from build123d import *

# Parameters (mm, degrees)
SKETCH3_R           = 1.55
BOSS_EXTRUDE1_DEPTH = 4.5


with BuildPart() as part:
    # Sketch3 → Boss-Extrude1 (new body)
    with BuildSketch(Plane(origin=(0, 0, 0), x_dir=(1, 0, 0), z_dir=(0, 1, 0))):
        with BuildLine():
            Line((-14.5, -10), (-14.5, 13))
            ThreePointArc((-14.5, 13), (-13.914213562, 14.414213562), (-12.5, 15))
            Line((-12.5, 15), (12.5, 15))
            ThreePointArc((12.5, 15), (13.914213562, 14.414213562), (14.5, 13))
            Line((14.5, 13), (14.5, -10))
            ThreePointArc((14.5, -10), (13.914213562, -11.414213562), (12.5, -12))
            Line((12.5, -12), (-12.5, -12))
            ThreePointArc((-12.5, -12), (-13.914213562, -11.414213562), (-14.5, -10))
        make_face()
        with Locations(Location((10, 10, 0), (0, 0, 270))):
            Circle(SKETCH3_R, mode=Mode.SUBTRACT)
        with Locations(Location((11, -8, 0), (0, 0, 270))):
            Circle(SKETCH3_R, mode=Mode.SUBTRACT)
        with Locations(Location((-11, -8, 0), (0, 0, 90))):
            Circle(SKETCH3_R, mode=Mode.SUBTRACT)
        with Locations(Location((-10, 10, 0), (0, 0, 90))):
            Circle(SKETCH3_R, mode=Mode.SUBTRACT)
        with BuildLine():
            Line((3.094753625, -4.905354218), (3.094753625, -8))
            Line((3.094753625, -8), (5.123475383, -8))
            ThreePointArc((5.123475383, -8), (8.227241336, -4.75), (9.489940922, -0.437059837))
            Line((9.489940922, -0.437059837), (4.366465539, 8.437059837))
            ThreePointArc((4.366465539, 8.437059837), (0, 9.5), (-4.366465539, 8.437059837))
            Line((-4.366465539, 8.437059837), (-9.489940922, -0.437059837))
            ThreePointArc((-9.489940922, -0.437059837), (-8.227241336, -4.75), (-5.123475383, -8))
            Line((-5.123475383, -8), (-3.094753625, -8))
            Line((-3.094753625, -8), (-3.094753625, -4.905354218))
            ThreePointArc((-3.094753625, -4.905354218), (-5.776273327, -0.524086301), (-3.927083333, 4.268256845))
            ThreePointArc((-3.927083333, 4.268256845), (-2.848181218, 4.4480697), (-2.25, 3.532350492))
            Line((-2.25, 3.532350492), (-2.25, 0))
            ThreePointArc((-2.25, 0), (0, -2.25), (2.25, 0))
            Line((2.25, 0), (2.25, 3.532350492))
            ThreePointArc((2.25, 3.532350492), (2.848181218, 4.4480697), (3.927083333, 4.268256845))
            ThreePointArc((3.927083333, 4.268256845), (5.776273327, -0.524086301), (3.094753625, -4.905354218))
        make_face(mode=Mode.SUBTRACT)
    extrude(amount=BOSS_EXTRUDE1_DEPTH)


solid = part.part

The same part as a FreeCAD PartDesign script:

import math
import FreeCAD as App
import Part
import Sketcher

V = App.Vector
Q = App.Units.Quantity

doc = App.newDocument("Part")
body = doc.addObject("PartDesign::Body", "Body")

sketch1 = body.newObject("Sketcher::SketchObject", "Sketch")
sketch1.AttachmentSupport = (doc.getObject("XZ_Plane"), [""])
sketch1.MapMode = "FlatFace"
sketch1.addGeometry([
    Part.LineSegment(V(-14.5, -13, 0), V(-14.5, 10, 0)),
    Part.ArcOfCircle(Part.Circle(V(-12.5, 10, 0), V(0, 0, 1), 2), math.radians(90), math.radians(180)),
    Part.LineSegment(V(-12.5, 12, 0), V(12.5, 12, 0)),
    Part.ArcOfCircle(Part.Circle(V(12.5, 10, 0), V(0, 0, 1), 2), math.radians(0), math.radians(90)),
    Part.LineSegment(V(14.5, 10, 0), V(14.5, -13, 0)),
    Part.ArcOfCircle(Part.Circle(V(12.5, -13, 0), V(0, 0, 1), 2), math.radians(-90), math.radians(0)),
    Part.LineSegment(V(12.5, -15, 0), V(-12.5, -15, 0)),
    Part.ArcOfCircle(Part.Circle(V(-12.5, -13, 0), V(0, 0, 1), 2), math.radians(-180), math.radians(-90)),
    Part.Circle(V(11, 8, 0), V(0, 0, 1), 1.6),
    Part.Circle(V(-11, 8, 0), V(0, 0, 1), 1.6),
    Part.ArcOfCircle(Part.Circle(V(0, 0, 0), V(0, 0, 1), 5.8), math.radians(-47), math.radians(58)),
    Part.ArcOfCircle(Part.Circle(V(3.2, -3.5, 0), V(0, 0, 1), 1), math.radians(180), math.radians(313)),
    Part.LineSegment(V(2.2, -3.5, 0), V(2.2, 0, 0)),
    Part.ArcOfCircle(Part.Circle(V(0, 0, 0), V(0, 0, 1), 2.2), math.radians(0), math.radians(180)),
    Part.LineSegment(V(-2.2, 0, 0), V(-2.2, -3.5, 0)),
    Part.ArcOfCircle(Part.Circle(V(-3.2, -3.5, 0), V(0, 0, 1), 1), math.radians(-133), math.radians(0)),
    Part.ArcOfCircle(Part.Circle(V(0, 0, 0), V(0, 0, 1), 5.8), math.radians(122), math.radians(227)),
    Part.LineSegment(V(-3.1, 4.9, 0), V(-3.1, 8, 0)),
    Part.LineSegment(V(-3.1, 8, 0), V(-5.1, 8, 0)),
    Part.ArcOfCircle(Part.Circle(V(0, 0, 0), V(0, 0, 1), 9.5), math.radians(123), math.radians(177)),
    Part.LineSegment(V(-9.5, 0.4, 0), V(-4.4, -8.4, 0)),
    Part.ArcOfCircle(Part.Circle(V(0, 0, 0), V(0, 0, 1), 9.5), math.radians(-117), math.radians(-63)),
    Part.LineSegment(V(4.4, -8.4, 0), V(9.5, 0.4, 0)),
    Part.ArcOfCircle(Part.Circle(V(0, 0, 0), V(0, 0, 1), 9.5), math.radians(3), math.radians(57)),
    Part.LineSegment(V(5.1, 8, 0), V(3.1, 8, 0)),
    Part.LineSegment(V(3.1, 8, 0), V(3.1, 4.9, 0)),
    Part.Circle(V(10, -10, 0), V(0, 0, 1), 1.6),
    Part.Circle(V(-10, -10, 0), V(0, 0, 1), 1.6),
], False)
sketch1.addConstraint([
    Sketcher.Constraint("Tangent", 0, 2, 1, 2),
    Sketcher.Constraint("Tangent", 1, 1, 2, 1),
    Sketcher.Constraint("Tangent", 2, 2, 3, 2),
    Sketcher.Constraint("Tangent", 3, 1, 4, 1),
    Sketcher.Constraint("Tangent", 4, 2, 5, 2),
    Sketcher.Constraint("Tangent", 5, 1, 6, 1),
    Sketcher.Constraint("Tangent", 6, 2, 7, 2),
    Sketcher.Constraint("Tangent", 7, 1, 0, 1),
    Sketcher.Constraint("Tangent", 10, 1, 11, 2),
    Sketcher.Constraint("Tangent", 11, 1, 12, 1),
    Sketcher.Constraint("Tangent", 12, 2, 13, 1),
    Sketcher.Constraint("Tangent", 13, 2, 14, 1),
    Sketcher.Constraint("Tangent", 14, 2, 15, 2),
    Sketcher.Constraint("Tangent", 15, 1, 16, 2),
    Sketcher.Constraint("Coincident", 16, 1, 17, 1),
    Sketcher.Constraint("Coincident", 17, 2, 18, 1),
    Sketcher.Constraint("Coincident", 18, 2, 19, 1),
    Sketcher.Constraint("Coincident", 19, 2, 20, 1),
    Sketcher.Constraint("Coincident", 20, 2, 21, 1),
    Sketcher.Constraint("Coincident", 21, 2, 22, 1),
    Sketcher.Constraint("Coincident", 22, 2, 23, 1),
    Sketcher.Constraint("Coincident", 23, 2, 24, 1),
    Sketcher.Constraint("Coincident", 24, 2, 25, 1),
    Sketcher.Constraint("Coincident", 25, 2, 10, 2),
    Sketcher.Constraint("Vertical", 0),
    Sketcher.Constraint("Horizontal", 2),
    Sketcher.Constraint("Vertical", 4),
    Sketcher.Constraint("Horizontal", 6),
    Sketcher.Constraint("Vertical", 12),
    Sketcher.Constraint("Vertical", 14),
    Sketcher.Constraint("Vertical", 17),
    Sketcher.Constraint("Horizontal", 18),
    Sketcher.Constraint("Horizontal", 24),
    Sketcher.Constraint("Vertical", 25),
    Sketcher.Constraint("Coincident", 10, 3, -1, 1),
    Sketcher.Constraint("Coincident", 13, 3, -1, 1),
    Sketcher.Constraint("Coincident", 16, 3, -1, 1),
    Sketcher.Constraint("Coincident", 19, 3, -1, 1),
    Sketcher.Constraint("Coincident", 21, 3, -1, 1),
    Sketcher.Constraint("Coincident", 23, 3, -1, 1),
    Sketcher.Constraint("Equal", 1, 3),
    Sketcher.Constraint("Equal", 3, 5),
    Sketcher.Constraint("Equal", 5, 7),
    Sketcher.Constraint("Equal", 8, 9),
    Sketcher.Constraint("Equal", 11, 15),
    Sketcher.Constraint("Equal", 10, 16),
    Sketcher.Constraint("Equal", 19, 21),
    Sketcher.Constraint("Equal", 21, 23),
    Sketcher.Constraint("Equal", 9, 26),
    Sketcher.Constraint("Equal", 26, 27),
    Sketcher.Constraint("Symmetric", 8, 3, 9, 3, -2),
    Sketcher.Constraint("Symmetric", 26, 3, 27, 3, -2),
    Sketcher.Constraint("Symmetric", 17, 2, 24, 2, -2),
    Sketcher.Constraint("Horizontal", 9, 3, 17, 2),
    Sketcher.Constraint("Horizontal", 20, 2, 21, 2),
    Sketcher.Constraint("Horizontal", 19, 2, 22, 2),
    Sketcher.Constraint("Radius", 1, Q("2 mm")),
    Sketcher.Constraint("Radius", 11, Q("1 mm")),
    Sketcher.Constraint("Diameter", 8, Q("3.1 mm")),
    Sketcher.Constraint("Radius", 10, Q("5.8 mm")),
    Sketcher.Constraint("Radius", 19, Q("9.5 mm")),
    Sketcher.Constraint("DistanceX", 2, 1, 2, 2, Q("25 mm")),
    Sketcher.Constraint("DistanceY", 0, 1, 0, 2, Q("23 mm")),
    Sketcher.Constraint("Angle", 20, Q("-60 deg")),
    Sketcher.Constraint("Radius", 13, Q("2.25 mm")),
    Sketcher.Constraint("DistanceY", -1, 1, 1, 3, Q("10 mm")),
    Sketcher.Constraint("DistanceX", -1, 1, 8, 3, Q("11 mm")),
    Sketcher.Constraint("DistanceY", -1, 1, 8, 3, Q("8 mm")),
    Sketcher.Constraint("DistanceX", -1, 1, 26, 3, Q("10 mm")),
    Sketcher.Constraint("DistanceY", 26, 3, -1, 1, Q("10 mm")),
    Sketcher.Constraint("DistanceX", 1, 3, -1, 1, Q("12.5 mm")),
    Sketcher.Constraint("DistanceX", 18, 2, 18, 1, Q("2.028722 mm")),
    Sketcher.Constraint("Distance", 20, Q("10.246951 mm")),
])
pad1 = body.newObject("PartDesign::Pad", "Pad")
pad1.Profile = sketch1
pad1.Length = 4.5
pad1.Reversed = True

doc.recompute()
